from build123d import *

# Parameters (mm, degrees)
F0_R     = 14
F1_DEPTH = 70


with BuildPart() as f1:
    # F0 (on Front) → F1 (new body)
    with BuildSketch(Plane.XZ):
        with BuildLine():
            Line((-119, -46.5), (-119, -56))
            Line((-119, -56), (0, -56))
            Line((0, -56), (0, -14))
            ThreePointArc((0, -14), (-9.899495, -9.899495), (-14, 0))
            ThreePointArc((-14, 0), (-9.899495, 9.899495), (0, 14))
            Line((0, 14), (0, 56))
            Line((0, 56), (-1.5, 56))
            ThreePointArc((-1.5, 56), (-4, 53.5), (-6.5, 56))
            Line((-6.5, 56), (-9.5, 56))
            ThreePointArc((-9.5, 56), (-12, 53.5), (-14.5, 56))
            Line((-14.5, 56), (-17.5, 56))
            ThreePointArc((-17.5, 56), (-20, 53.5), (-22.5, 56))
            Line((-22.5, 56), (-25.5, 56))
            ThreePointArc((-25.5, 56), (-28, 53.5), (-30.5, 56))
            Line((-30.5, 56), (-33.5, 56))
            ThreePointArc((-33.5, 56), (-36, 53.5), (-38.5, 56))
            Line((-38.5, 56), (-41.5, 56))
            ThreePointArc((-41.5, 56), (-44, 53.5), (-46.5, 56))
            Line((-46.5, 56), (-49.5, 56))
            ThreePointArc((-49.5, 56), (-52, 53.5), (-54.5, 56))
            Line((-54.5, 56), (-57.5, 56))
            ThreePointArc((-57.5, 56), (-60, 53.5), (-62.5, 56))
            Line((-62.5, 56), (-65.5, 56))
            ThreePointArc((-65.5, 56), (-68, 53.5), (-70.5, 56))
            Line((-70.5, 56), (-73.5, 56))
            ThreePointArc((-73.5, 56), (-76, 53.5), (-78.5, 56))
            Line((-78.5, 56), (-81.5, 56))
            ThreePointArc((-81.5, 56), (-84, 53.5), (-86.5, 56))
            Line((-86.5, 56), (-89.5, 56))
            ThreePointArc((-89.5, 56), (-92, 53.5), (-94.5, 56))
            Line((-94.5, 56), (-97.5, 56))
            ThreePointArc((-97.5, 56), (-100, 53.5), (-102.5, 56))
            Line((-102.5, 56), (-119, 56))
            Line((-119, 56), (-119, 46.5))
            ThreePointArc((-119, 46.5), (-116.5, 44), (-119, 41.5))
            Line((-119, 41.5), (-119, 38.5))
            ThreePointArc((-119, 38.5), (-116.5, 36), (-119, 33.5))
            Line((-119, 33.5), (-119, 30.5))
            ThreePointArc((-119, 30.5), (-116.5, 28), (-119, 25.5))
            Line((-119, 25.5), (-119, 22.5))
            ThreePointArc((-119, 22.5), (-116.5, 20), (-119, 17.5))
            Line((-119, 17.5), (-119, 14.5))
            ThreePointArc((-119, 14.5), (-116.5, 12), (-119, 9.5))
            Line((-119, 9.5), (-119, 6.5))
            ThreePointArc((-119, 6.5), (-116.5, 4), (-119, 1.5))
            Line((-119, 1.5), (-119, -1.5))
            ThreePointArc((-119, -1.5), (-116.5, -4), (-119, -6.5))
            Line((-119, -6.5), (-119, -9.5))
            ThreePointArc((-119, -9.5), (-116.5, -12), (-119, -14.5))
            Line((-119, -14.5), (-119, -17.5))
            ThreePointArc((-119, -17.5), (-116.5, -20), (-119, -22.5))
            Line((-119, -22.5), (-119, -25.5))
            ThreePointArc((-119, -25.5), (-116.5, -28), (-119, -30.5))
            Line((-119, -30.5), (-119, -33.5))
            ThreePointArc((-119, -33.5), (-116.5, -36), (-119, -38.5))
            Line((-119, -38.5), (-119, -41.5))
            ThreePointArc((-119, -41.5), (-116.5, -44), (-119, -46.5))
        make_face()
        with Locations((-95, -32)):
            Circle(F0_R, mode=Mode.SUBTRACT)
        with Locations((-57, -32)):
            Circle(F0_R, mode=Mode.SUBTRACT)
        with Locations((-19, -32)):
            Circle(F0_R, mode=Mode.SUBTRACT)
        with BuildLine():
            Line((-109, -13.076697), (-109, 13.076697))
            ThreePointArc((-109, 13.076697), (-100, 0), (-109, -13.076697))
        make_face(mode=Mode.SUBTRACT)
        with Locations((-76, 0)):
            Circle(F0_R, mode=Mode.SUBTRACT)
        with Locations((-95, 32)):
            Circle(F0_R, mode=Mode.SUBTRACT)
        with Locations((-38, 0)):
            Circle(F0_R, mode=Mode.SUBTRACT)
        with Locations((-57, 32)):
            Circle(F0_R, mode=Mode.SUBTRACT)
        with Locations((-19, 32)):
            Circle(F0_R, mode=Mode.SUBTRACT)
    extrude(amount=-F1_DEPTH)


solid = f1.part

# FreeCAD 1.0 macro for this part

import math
import FreeCAD as App
import Part
import Sketcher

V = App.Vector
Q = App.Units.Quantity

doc = App.newDocument("Part")
params = doc.addObject("Spreadsheet::Sheet", "Params")
for row, (alias, value) in enumerate([
    ("sketch1_diameter", "28 mm"),
    ("sketch1_radius", "2.5 mm"),
    ("sketch1_width", "119 mm"),
    ("sketch1_width2", "3 mm"),
    ("sketch1_height", "42 mm"),
    ("pad1_length", "70 mm"),
], start=1):
    params.set(f"A{row}", alias)
    params.set(f"B{row}", "=" + value)
    params.setAlias(f"B{row}", alias)

body = doc.addObject("PartDesign::Body", "Body")

sketch1 = doc.addObject("Sketcher::SketchObject", "Sketch")
body.addObject(sketch1)
sketch1.AttachmentSupport = (doc.XZ_Plane, [""])
sketch1.MapMode = "FlatFace"
sketch1.addGeometry([
    Part.LineSegment(V(-119, -46.5, 0), V(-119, -56, 0)),
    Part.LineSegment(V(-119, -56, 0), V(0, -56, 0)),
    Part.LineSegment(V(0, -56, 0), V(0, -14, 0)),
    Part.ArcOfCircle(Part.Circle(V(0, 0, 0), V(0, 0, 1), 14), math.radians(179.999999), math.radians(270.000001)),
    Part.ArcOfCircle(Part.Circle(V(0, 0, 0), V(0, 0, 1), 14), math.radians(89.999999), math.radians(180.000001)),
    Part.LineSegment(V(0, 14, 0), V(0, 56, 0)),
    Part.LineSegment(V(0, 56, 0), V(-1.5, 56, 0)),
    Part.ArcOfCircle(Part.Circle(V(-4, 56, 0), V(0, 0, 1), 2.5), math.radians(180), math.radians(360)),
    Part.LineSegment(V(-6.5, 56, 0), V(-9.5, 56, 0)),
    Part.ArcOfCircle(Part.Circle(V(-12, 56, 0), V(0, 0, 1), 2.5), math.radians(180), math.radians(360)),
    Part.LineSegment(V(-14.5, 56, 0), V(-17.5, 56, 0)),
    Part.ArcOfCircle(Part.Circle(V(-20, 56, 0), V(0, 0, 1), 2.5), math.radians(180), math.radians(360)),
    Part.LineSegment(V(-22.5, 56, 0), V(-25.5, 56, 0)),
    Part.ArcOfCircle(Part.Circle(V(-28, 56, 0), V(0, 0, 1), 2.5), math.radians(180), math.radians(360)),
    Part.LineSegment(V(-30.5, 56, 0), V(-33.5, 56, 0)),
    Part.ArcOfCircle(Part.Circle(V(-36, 56, 0), V(0, 0, 1), 2.5), math.radians(180), math.radians(360)),
    Part.LineSegment(V(-38.5, 56, 0), V(-41.5, 56, 0)),
    Part.ArcOfCircle(Part.Circle(V(-44, 56, 0), V(0, 0, 1), 2.5), math.radians(180), math.radians(360)),
    Part.LineSegment(V(-46.5, 56, 0), V(-49.5, 56, 0)),
    Part.ArcOfCircle(Part.Circle(V(-52, 56, 0), V(0, 0, 1), 2.5), math.radians(180), math.radians(360)),
    Part.LineSegment(V(-54.5, 56, 0), V(-57.5, 56, 0)),
    Part.ArcOfCircle(Part.Circle(V(-60, 56, 0), V(0, 0, 1), 2.5), math.radians(180), math.radians(360)),
    Part.LineSegment(V(-62.5, 56, 0), V(-65.5, 56, 0)),
    Part.ArcOfCircle(Part.Circle(V(-68, 56, 0), V(0, 0, 1), 2.5), math.radians(180), math.radians(360)),
    Part.LineSegment(V(-70.5, 56, 0), V(-73.5, 56, 0)),
    Part.ArcOfCircle(Part.Circle(V(-76, 56, 0), V(0, 0, 1), 2.5), math.radians(180), math.radians(360)),
    Part.LineSegment(V(-78.5, 56, 0), V(-81.5, 56, 0)),
    Part.ArcOfCircle(Part.Circle(V(-84, 56, 0), V(0, 0, 1), 2.5), math.radians(180), math.radians(360)),
    Part.LineSegment(V(-86.5, 56, 0), V(-89.5, 56, 0)),
    Part.ArcOfCircle(Part.Circle(V(-92, 56, 0), V(0, 0, 1), 2.5), math.radians(180), math.radians(360)),
    Part.LineSegment(V(-94.5, 56, 0), V(-97.5, 56, 0)),
    Part.ArcOfCircle(Part.Circle(V(-100, 56, 0), V(0, 0, 1), 2.5), math.radians(180), math.radians(360)),
    Part.LineSegment(V(-102.5, 56, 0), V(-119, 56, 0)),
    Part.LineSegment(V(-119, 56, 0), V(-119, 46.5, 0)),
    Part.ArcOfCircle(Part.Circle(V(-119, 44, 0), V(0, 0, 1), 2.5), math.radians(-90), math.radians(90)),
    Part.LineSegment(V(-119, 41.5, 0), V(-119, 38.5, 0)),
    Part.ArcOfCircle(Part.Circle(V(-119, 36, 0), V(0, 0, 1), 2.5), math.radians(-90), math.radians(90)),
    Part.LineSegment(V(-119, 33.5, 0), V(-119, 30.5, 0)),
    Part.ArcOfCircle(Part.Circle(V(-119, 28, 0), V(0, 0, 1), 2.5), math.radians(-90), math.radians(90)),
    Part.LineSegment(V(-119, 25.5, 0), V(-119, 22.5, 0)),
    Part.ArcOfCircle(Part.Circle(V(-119, 20, 0), V(0, 0, 1), 2.5), math.radians(-90), math.radians(90)),
    Part.LineSegment(V(-119, 17.5, 0), V(-119, 14.5, 0)),
    Part.ArcOfCircle(Part.Circle(V(-119, 12, 0), V(0, 0, 1), 2.5), math.radians(-90), math.radians(90)),
    Part.LineSegment(V(-119, 9.5, 0), V(-119, 6.5, 0)),
    Part.ArcOfCircle(Part.Circle(V(-119, 4, 0), V(0, 0, 1), 2.5), math.radians(-90), math.radians(90)),
    Part.LineSegment(V(-119, 1.5, 0), V(-119, -1.5, 0)),
    Part.ArcOfCircle(Part.Circle(V(-119, -4, 0), V(0, 0, 1), 2.5), math.radians(-90), math.radians(90)),
    Part.LineSegment(V(-119, -6.5, 0), V(-119, -9.5, 0)),
    Part.ArcOfCircle(Part.Circle(V(-119, -12, 0), V(0, 0, 1), 2.5), math.radians(-90), math.radians(90)),
    Part.LineSegment(V(-119, -14.5, 0), V(-119, -17.5, 0)),
    Part.ArcOfCircle(Part.Circle(V(-119, -20, 0), V(0, 0, 1), 2.5), math.radians(-90), math.radians(90)),
    Part.LineSegment(V(-119, -22.5, 0), V(-119, -25.5, 0)),
    Part.ArcOfCircle(Part.Circle(V(-119, -28, 0), V(0, 0, 1), 2.5), math.radians(-90), math.radians(90)),
    Part.LineSegment(V(-119, -30.5, 0), V(-119, -33.5, 0)),
    Part.ArcOfCircle(Part.Circle(V(-119, -36, 0), V(0, 0, 1), 2.5), math.radians(-90), math.radians(90)),
    Part.LineSegment(V(-119, -38.5, 0), V(-119, -41.5, 0)),
    Part.ArcOfCircle(Part.Circle(V(-119, -44, 0), V(0, 0, 1), 2.5), math.radians(-90), math.radians(90)),
    Part.Circle(V(-95, -32, 0), V(0, 0, 1), 14),
    Part.Circle(V(-57, -32, 0), V(0, 0, 1), 14),
    Part.Circle(V(-19, -32, 0), V(0, 0, 1), 14),
    Part.ArcOfCircle(Part.Circle(V(-114, 0, 0), V(0, 0, 1), 14), math.radians(-69.075167), math.radians(69.075167)),
    Part.LineSegment(V(-109, -13.076697, 0), V(-109, 13.076697, 0)),
    Part.Circle(V(-76, 0, 0), V(0, 0, 1), 14),
    Part.Circle(V(-95, 32, 0), V(0, 0, 1), 14),
    Part.Circle(V(-38, 0, 0), V(0, 0, 1), 14),
    Part.Circle(V(-57, 32, 0), V(0, 0, 1), 14),
    Part.Circle(V(-19, 32, 0), V(0, 0, 1), 14),
], False)
sketch1.addConstraint([
    Sketcher.Constraint("Coincident", 0, 2, 1, 1),
    Sketcher.Constraint("Coincident", 1, 2, 2, 1),
    Sketcher.Constraint("Coincident", 2, 2, 3, 2),
    Sketcher.Constraint("Tangent", 3, 1, 4, 2),
    Sketcher.Constraint("Coincident", 4, 1, 5, 1),
    Sketcher.Constraint("Coincident", 5, 2, 6, 1),
    Sketcher.Constraint("Coincident", 6, 2, 7, 2),
    Sketcher.Constraint("Coincident", 7, 1, 8, 1),
    Sketcher.Constraint("Coincident", 8, 2, 9, 2),
    Sketcher.Constraint("Coincident", 9, 1, 10, 1),
    Sketcher.Constraint("Coincident", 10, 2, 11, 2),
    Sketcher.Constraint("Coincident", 11, 1, 12, 1),
    Sketcher.Constraint("Coincident", 12, 2, 13, 2),
    Sketcher.Constraint("Coincident", 13, 1, 14, 1),
    Sketcher.Constraint("Coincident", 14, 2, 15, 2),
    Sketcher.Constraint("Coincident", 15, 1, 16, 1),
    Sketcher.Constraint("Coincident", 16, 2, 17, 2),
    Sketcher.Constraint("Coincident", 17, 1, 18, 1),
    Sketcher.Constraint("Coincident", 18, 2, 19, 2),
    Sketcher.Constraint("Coincident", 19, 1, 20, 1),
    Sketcher.Constraint("Coincident", 20, 2, 21, 2),
    Sketcher.Constraint("Coincident", 21, 1, 22, 1),
    Sketcher.Constraint("Coincident", 22, 2, 23, 2),
    Sketcher.Constraint("Coincident", 23, 1, 24, 1),
    Sketcher.Constraint("Coincident", 24, 2, 25, 2),
    Sketcher.Constraint("Coincident", 25, 1, 26, 1),
    Sketcher.Constraint("Coincident", 26, 2, 27, 2),
    Sketcher.Constraint("Coincident", 27, 1, 28, 1),
    Sketcher.Constraint("Coincident", 28, 2, 29, 2),
    Sketcher.Constraint("Coincident", 29, 1, 30, 1),
    Sketcher.Constraint("Coincident", 30, 2, 31, 2),
    Sketcher.Constraint("Coincident", 31, 1, 32, 1),
    Sketcher.Constraint("Coincident", 32, 2, 33, 1),
    Sketcher.Constraint("Coincident", 33, 2, 34, 2),
    Sketcher.Constraint("Coincident", 34, 1, 35, 1),
    Sketcher.Constraint("Coincident", 35, 2, 36, 2),
    Sketcher.Constraint("Coincident", 36, 1, 37, 1),
    Sketcher.Constraint("Coincident", 37, 2, 38, 2),
    Sketcher.Constraint("Coincident", 38, 1, 39, 1),
    Sketcher.Constraint("Coincident", 39, 2, 40, 2),
    Sketcher.Constraint("Coincident", 40, 1, 41, 1),
    Sketcher.Constraint("Coincident", 41, 2, 42, 2),
    Sketcher.Constraint("Coincident", 42, 1, 43, 1),
    Sketcher.Constraint("Coincident", 43, 2, 44, 2),
    Sketcher.Constraint("Coincident", 44, 1, 45, 1),
    Sketcher.Constraint("Coincident", 45, 2, 46, 2),
    Sketcher.Constraint("Coincident", 46, 1, 47, 1),
    Sketcher.Constraint("Coincident", 47, 2, 48, 2),
    Sketcher.Constraint("Coincident", 48, 1, 49, 1),
    Sketcher.Constraint("Coincident", 49, 2, 50, 2),
    Sketcher.Constraint("Coincident", 50, 1, 51, 1),
    Sketcher.Constraint("Coincident", 51, 2, 52, 2),
    Sketcher.Constraint("Coincident", 52, 1, 53, 1),
    Sketcher.Constraint("Coincident", 53, 2, 54, 2),
    Sketcher.Constraint("Coincident", 54, 1, 55, 1),
    Sketcher.Constraint("Coincident", 55, 2, 56, 2),
    Sketcher.Constraint("Coincident", 56, 1, 0, 1),
    Sketcher.Constraint("Coincident", 60, 1, 61, 1),
    Sketcher.Constraint("Coincident", 61, 2, 60, 2),
    Sketcher.Constraint("Vertical", 0),
    Sketcher.Constraint("Horizontal", 1),
    Sketcher.Constraint("Vertical", 2),
    Sketcher.Constraint("Vertical", 5),
    Sketcher.Constraint("Horizontal", 6),
    Sketcher.Constraint("Horizontal", 8),
    Sketcher.Constraint("Horizontal", 10),
    Sketcher.Constraint("Horizontal", 12),
    Sketcher.Constraint("Horizontal", 14),
    Sketcher.Constraint("Horizontal", 16),
    Sketcher.Constraint("Horizontal", 18),
    Sketcher.Constraint("Horizontal", 20),
    Sketcher.Constraint("Horizontal", 22),
    Sketcher.Constraint("Horizontal", 24),
    Sketcher.Constraint("Horizontal", 26),
    Sketcher.Constraint("Horizontal", 28),
    Sketcher.Constraint("Horizontal", 30),
    Sketcher.Constraint("Horizontal", 32),
    Sketcher.Constraint("Vertical", 33),
    Sketcher.Constraint("Vertical", 35),
    Sketcher.Constraint("Vertical", 37),
    Sketcher.Constraint("Vertical", 39),
    Sketcher.Constraint("Vertical", 41),
    Sketcher.Constraint("Vertical", 43),
    Sketcher.Constraint("Vertical", 45),
    Sketcher.Constraint("Vertical", 47),
    Sketcher.Constraint("Vertical", 49),
    Sketcher.Constraint("Vertical", 51),
    Sketcher.Constraint("Vertical", 53),
    Sketcher.Constraint("Vertical", 55),
    Sketcher.Constraint("Vertical", 61),
    Sketcher.Constraint("Coincident", 3, 3, -1, 1),
    Sketcher.Constraint("Equal", 3, 4),
    Sketcher.Constraint("Equal", 7, 9),
    Sketcher.Constraint("Equal", 9, 11),
    Sketcher.Constraint("Equal", 11, 13),
    Sketcher.Constraint("Equal", 13, 15),
    Sketcher.Constraint("Equal", 15, 17),
    Sketcher.Constraint("Equal", 17, 19),
    Sketcher.Constraint("Equal", 19, 21),
    Sketcher.Constraint("Equal", 21, 23),
    Sketcher.Constraint("Equal", 23, 25),
    Sketcher.Constraint("Equal", 25, 27),
    Sketcher.Constraint("Equal", 27, 29),
    Sketcher.Constraint("Equal", 29, 31),
    Sketcher.Constraint("Equal", 31, 34),
    Sketcher.Constraint("Equal", 34, 36),
    Sketcher.Constraint("Equal", 36, 38),
    Sketcher.Constraint("Equal", 38, 40),
    Sketcher.Constraint("Equal", 40, 42),
    Sketcher.Constraint("Equal", 42, 44),
    Sketcher.Constraint("Equal", 44, 46),
    Sketcher.Constraint("Equal", 46, 48),
    Sketcher.Constraint("Equal", 48, 50),
    Sketcher.Constraint("Equal", 50, 52),
    Sketcher.Constraint("Equal", 52, 54),
    Sketcher.Constraint("Equal", 54, 56),
    Sketcher.Constraint("Equal", 4, 57),
    Sketcher.Constraint("Equal", 57, 58),
    Sketcher.Constraint("Equal", 58, 59),
    Sketcher.Constraint("Equal", 59, 60),
    Sketcher.Constraint("Equal", 60, 62),
    Sketcher.Constraint("Equal", 62, 63),
    Sketcher.Constraint("Equal", 63, 64),
    Sketcher.Constraint("Equal", 64, 65),
    Sketcher.Constraint("Equal", 65, 66),
    Sketcher.Constraint("Symmetric", 1, 2, 5, 2, -1, 1),
    Sketcher.Constraint("Symmetric", 44, 3, 46, 3, -1),
    Sketcher.Constraint("Symmetric", 42, 3, 48, 3, -1),
    Sketcher.Constraint("Symmetric", 40, 3, 50, 3, -1),
    Sketcher.Constraint("Symmetric", 38, 3, 52, 3, -1),
    Sketcher.Constraint("Symmetric", 36, 3, 54, 3, -1),
    Sketcher.Constraint("Symmetric", 34, 3, 56, 3, -1),
    Sketcher.Constraint("Symmetric", 57, 3, 63, 3, -1),
    Sketcher.Constraint("Symmetric", 58, 3, 65, 3, -1),
    Sketcher.Constraint("Symmetric", 59, 3, 66, 3, -1),
    Sketcher.Constraint("Symmetric", 0, 2, 32, 2, -1),
    Sketcher.Constraint("PointOnObject", 60, 3, -1),
    Sketcher.Constraint("PointOnObject", 62, 3, -1),
    Sketcher.Constraint("PointOnObject", 64, 3, -1),
    Sketcher.Constraint("PointOnObject", 1, 2, -2),
    Sketcher.Constraint("PointOnObject", 3, 1, -1),
    Sketcher.Constraint("Horizontal", 7, 3, 9, 3),
    Sketcher.Constraint("Horizontal", 9, 3, 11, 3),
    Sketcher.Constraint("Horizontal", 11, 3, 13, 3),
    Sketcher.Constraint("Horizontal", 13, 3, 15, 3),
    Sketcher.Constraint("Horizontal", 15, 3, 17, 3),
    Sketcher.Constraint("Horizontal", 17, 3, 19, 3),
    Sketcher.Constraint("Horizontal", 19, 3, 21, 3),
    Sketcher.Constraint("Horizontal", 21, 3, 23, 3),
    Sketcher.Constraint("Horizontal", 23, 3, 25, 3),
    Sketcher.Constraint("Horizontal", 25, 3, 27, 3),
    Sketcher.Constraint("Horizontal", 27, 3, 29, 3),
    Sketcher.Constraint("Horizontal", 29, 3, 31, 3),
    Sketcher.Constraint("Horizontal", 57, 3, 58, 3),
    Sketcher.Constraint("Horizontal", 58, 3, 59, 3),
    Sketcher.Constraint("Horizontal", 31, 3, 5, 2),
    Sketcher.Constraint("Horizontal", 6, 2, 7, 1),
    Sketcher.Constraint("Horizontal", 8, 2, 9, 1),
    Sketcher.Constraint("Horizontal", 10, 2, 11, 1),
    Sketcher.Constraint("Horizontal", 12, 2, 13, 1),
    Sketcher.Constraint("Horizontal", 14, 2, 15, 1),
    Sketcher.Constraint("Horizontal", 16, 2, 17, 1),
    Sketcher.Constraint("Horizontal", 18, 2, 19, 1),
    Sketcher.Constraint("Horizontal", 20, 2, 21, 1),
    Sketcher.Constraint("Horizontal", 22, 2, 23, 1),
    Sketcher.Constraint("Horizontal", 24, 2, 25, 1),
    Sketcher.Constraint("Horizontal", 26, 2, 27, 1),
    Sketcher.Constraint("Horizontal", 28, 2, 29, 1),
    Sketcher.Constraint("Vertical", 34, 3, 36, 3),
    Sketcher.Constraint("Vertical", 36, 3, 38, 3),
    Sketcher.Constraint("Vertical", 38, 3, 40, 3),
    Sketcher.Constraint("Vertical", 40, 3, 42, 3),
    Sketcher.Constraint("Vertical", 42, 3, 44, 3),
    Sketcher.Constraint("Vertical", 25, 3, 62, 3),
    Sketcher.Constraint("Vertical", 56, 3, 0, 2),
    Sketcher.Constraint("Vertical", 33, 2, 34, 1),
    Sketcher.Constraint("Vertical", 35, 2, 36, 1),
    Sketcher.Constraint("Vertical", 37, 2, 38, 1),
    Sketcher.Constraint("Vertical", 39, 2, 40, 1),
    Sketcher.Constraint("Vertical", 41, 2, 42, 1),
    Sketcher.Constraint("Vertical", 43, 2, 44, 1),
    Sketcher.Constraint("Vertical", 45, 2, 46, 1),
    Sketcher.Constraint("Vertical", 47, 2, 48, 1),
    Sketcher.Constraint("Vertical", 49, 2, 50, 1),
    Sketcher.Constraint("Vertical", 51, 2, 52, 1),
    Sketcher.Constraint("Vertical", 53, 2, 54, 1),
    Sketcher.Constraint("Equal", 8, 10),
    Sketcher.Constraint("Equal", 10, 12),
    Sketcher.Constraint("Equal", 12, 14),
    Sketcher.Constraint("Equal", 14, 16),
    Sketcher.Constraint("Equal", 16, 18),
    Sketcher.Constraint("Equal", 18, 20),
    Sketcher.Constraint("Equal", 20, 22),
    Sketcher.Constraint("Equal", 22, 24),
    Sketcher.Constraint("Equal", 24, 26),
    Sketcher.Constraint("Equal", 26, 28),
    Sketcher.Constraint("Equal", 28, 30),
    Sketcher.Constraint("Equal", 30, 35),
    Sketcher.Constraint("Equal", 35, 37),
    Sketcher.Constraint("Equal", 37, 39),
    Sketcher.Constraint("Equal", 39, 41),
    Sketcher.Constraint("Equal", 41, 43),
    Sketcher.Constraint("Equal", 43, 45),
    Sketcher.Constraint("Diameter", 57, Q("28 mm")),
    Sketcher.Constraint("Radius", 7, Q("2.5 mm")),
    Sketcher.Constraint("DistanceX", 1, 1, 1, 2, Q("119 mm")),
    Sketcher.Constraint("DistanceX", 8, 2, 8, 1, Q("3 mm")),
    Sketcher.Constraint("DistanceY", 2, 1, 2, 2, Q("42 mm")),
    Sketcher.Constraint("DistanceX", 6, 2, 6, 1, Q("1.5 mm")),
    Sketcher.Constraint("DistanceX", 57, 3, -1, 1, Q("95 mm")),
    Sketcher.Constraint("DistanceY", 57, 3, -1, 1, Q("32 mm")),
    Sketcher.Constraint("DistanceX", 58, 3, -1, 1, Q("57 mm")),
    Sketcher.Constraint("DistanceX", 59, 3, -1, 1, Q("19 mm")),
    Sketcher.Constraint("DistanceX", 60, 3, -1, 1, Q("114 mm")),
    Sketcher.Constraint("DistanceX", 64, 3, -1, 1, Q("38 mm")),
    Sketcher.Constraint("DistanceX", 60, 1, -1, 1, Q("109 mm")),
])
sketch1.setExpression("Constraints[203]", "Params.sketch1_diameter")
sketch1.setExpression("Constraints[204]", "Params.sketch1_radius")
sketch1.setExpression("Constraints[205]", "Params.sketch1_width")
sketch1.setExpression("Constraints[206]", "Params.sketch1_width2")
sketch1.setExpression("Constraints[207]", "Params.sketch1_height")
pad1 = doc.addObject("PartDesign::Pad", "Pad")
body.addObject(pad1)
pad1.Profile = sketch1
pad1.setExpression("Length", "Params.pad1_length")
pad1.Reversed = True

doc.recompute()
